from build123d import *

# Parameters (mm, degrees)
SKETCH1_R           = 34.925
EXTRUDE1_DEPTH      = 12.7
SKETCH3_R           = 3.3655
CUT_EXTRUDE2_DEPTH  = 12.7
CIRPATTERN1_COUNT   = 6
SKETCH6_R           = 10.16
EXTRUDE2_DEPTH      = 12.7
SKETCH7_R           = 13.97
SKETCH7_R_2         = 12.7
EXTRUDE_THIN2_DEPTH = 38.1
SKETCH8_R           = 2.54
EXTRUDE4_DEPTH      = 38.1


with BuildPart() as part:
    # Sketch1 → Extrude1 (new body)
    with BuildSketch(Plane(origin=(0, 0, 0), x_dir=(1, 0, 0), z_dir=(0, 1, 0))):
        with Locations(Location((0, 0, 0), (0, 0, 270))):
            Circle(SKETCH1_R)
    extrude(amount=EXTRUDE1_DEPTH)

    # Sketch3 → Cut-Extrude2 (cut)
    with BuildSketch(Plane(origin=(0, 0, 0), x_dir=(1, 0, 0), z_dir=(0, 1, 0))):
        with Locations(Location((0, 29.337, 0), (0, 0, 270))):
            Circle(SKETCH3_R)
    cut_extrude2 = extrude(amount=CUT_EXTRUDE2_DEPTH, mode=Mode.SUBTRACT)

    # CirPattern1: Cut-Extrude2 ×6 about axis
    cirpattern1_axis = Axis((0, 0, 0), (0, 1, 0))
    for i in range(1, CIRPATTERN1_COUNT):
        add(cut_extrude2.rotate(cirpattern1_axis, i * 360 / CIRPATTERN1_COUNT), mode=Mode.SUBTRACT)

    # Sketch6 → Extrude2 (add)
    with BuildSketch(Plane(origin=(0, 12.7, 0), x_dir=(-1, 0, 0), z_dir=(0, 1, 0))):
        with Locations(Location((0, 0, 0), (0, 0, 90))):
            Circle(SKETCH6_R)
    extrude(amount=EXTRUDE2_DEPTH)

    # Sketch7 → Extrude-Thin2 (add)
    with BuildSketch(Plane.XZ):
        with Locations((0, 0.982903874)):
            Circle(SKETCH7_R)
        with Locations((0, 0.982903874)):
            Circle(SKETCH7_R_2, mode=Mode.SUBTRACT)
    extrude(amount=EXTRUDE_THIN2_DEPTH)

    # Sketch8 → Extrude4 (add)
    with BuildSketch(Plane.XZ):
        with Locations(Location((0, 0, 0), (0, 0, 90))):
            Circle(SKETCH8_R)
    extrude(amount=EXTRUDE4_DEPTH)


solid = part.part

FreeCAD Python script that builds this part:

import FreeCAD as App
import Part
import Sketcher
Q = App.Units.Quantity

doc = App.newDocument("Part")
body = doc.addObject("PartDesign::Body", "Body")

# Sketch on XZ plane
sketch1 = body.newObject("Sketcher::SketchObject", "Sketch")
sketch1.AttachmentSupport = (doc.getObject("XZ_Plane"), [""])
sketch1.MapMode = "FlatFace"
sketch1.addGeometry(Part.Circle(App.Vector(0, 0, 0), App.Vector(0, 0, 1), 35), False)
sketch1.addConstraint([
    Sketcher.Constraint("Coincident", 0, 3, -1, 1),
    Sketcher.Constraint("Diameter", 0, Q("2.75 in")),
])
pad1 = body.newObject("PartDesign::Pad", "Pad")
pad1.Profile = sketch1
pad1.Length = Q("0.5 in")
pad1.Reversed = True

# Sketch on XZ plane
sketch2 = body.newObject("Sketcher::SketchObject", "Sketch001")
sketch2.AttachmentSupport = (doc.getObject("XZ_Plane"), [""])
sketch2.MapMode = "FlatFace"
sketch2.addGeometry(Part.Circle(App.Vector(0, -29.3, 0), App.Vector(0, 0, 1), 3.4), False)
sketch2.addConstraint([
    Sketcher.Constraint("PointOnObject", 0, 3, -2),
    Sketcher.Constraint("Diameter", 0, Q("0.265 in")),
    Sketcher.Constraint("DistanceY", 0, 3, -1, 1, Q("1.155 in")),
])
pocket1 = body.newObject("PartDesign::Pocket", "Pocket")
pocket1.Profile = sketch2
pocket1.Length = Q("0.5 in")
doc.recompute()

polarpattern = body.newObject("PartDesign::PolarPattern", "PolarPattern")
polarpattern.Originals = [pocket1]
polarpattern.Axis = (doc.getObject("Y_Axis"), [""])
polarpattern.Angle = 360
polarpattern.Occurrences = 6
body.Tip = polarpattern

# Sketch on XZ plane
sketch3 = body.newObject("Sketcher::SketchObject", "Sketch002")
sketch3.AttachmentSupport = (doc.getObject("XZ_Plane"), [""])
sketch3.MapMode = "FlatFace"
sketch3.AttachmentOffset = App.Placement(App.Vector(0, 0, -0.5 * 25.4), App.Rotation())
sketch3.addGeometry(Part.Circle(App.Vector(0, 0, 0), App.Vector(0, 0, 1), 10), False)
sketch3.addConstraint([
    Sketcher.Constraint("Coincident", 0, 3, -1, 1),
    Sketcher.Constraint("Diameter", 0, Q("0.8 in")),
])
pad2 = body.newObject("PartDesign::Pad", "Pad001")
pad2.Profile = sketch3
pad2.Length = Q("0.5 in")
pad2.Reversed = True

# Sketch on XZ plane
sketch4 = body.newObject("Sketcher::SketchObject", "Sketch003")
sketch4.AttachmentSupport = (doc.getObject("XZ_Plane"), [""])
sketch4.MapMode = "FlatFace"
sketch4.addGeometry([
    Part.Circle(App.Vector(0, 1, 0), App.Vector(0, 0, 1), 14),
    Part.Circle(App.Vector(0, 1, 0), App.Vector(0, 0, 1), 13),
], False)
sketch4.addConstraint([
    Sketcher.Constraint("Coincident", 1, 3, 0, 3),
    Sketcher.Constraint("PointOnObject", 0, 3, -2),
    Sketcher.Constraint("Diameter", 1, Q("1 in")),
    Sketcher.Constraint("Diameter", 0, Q("1.1 in")),
    Sketcher.Constraint("DistanceY", -1, 1, 0, 3, 0.982904),
])
pad3 = body.newObject("PartDesign::Pad", "Pad002")
pad3.Profile = sketch4
pad3.Length = Q("1.5 in")

# Sketch on XZ plane
sketch5 = body.newObject("Sketcher::SketchObject", "Sketch004")
sketch5.AttachmentSupport = (doc.getObject("XZ_Plane"), [""])
sketch5.MapMode = "FlatFace"
sketch5.addGeometry(Part.Circle(App.Vector(0, 0, 0), App.Vector(0, 0, 1), 2.5), False)
sketch5.addConstraint([
    Sketcher.Constraint("Coincident", 0, 3, -1, 1),
    Sketcher.Constraint("Diameter", 0, Q("0.2 in")),
])
pad4 = body.newObject("PartDesign::Pad", "Pad003")
pad4.Profile = sketch5
pad4.Length = Q("1.5 in")

doc.recompute()
